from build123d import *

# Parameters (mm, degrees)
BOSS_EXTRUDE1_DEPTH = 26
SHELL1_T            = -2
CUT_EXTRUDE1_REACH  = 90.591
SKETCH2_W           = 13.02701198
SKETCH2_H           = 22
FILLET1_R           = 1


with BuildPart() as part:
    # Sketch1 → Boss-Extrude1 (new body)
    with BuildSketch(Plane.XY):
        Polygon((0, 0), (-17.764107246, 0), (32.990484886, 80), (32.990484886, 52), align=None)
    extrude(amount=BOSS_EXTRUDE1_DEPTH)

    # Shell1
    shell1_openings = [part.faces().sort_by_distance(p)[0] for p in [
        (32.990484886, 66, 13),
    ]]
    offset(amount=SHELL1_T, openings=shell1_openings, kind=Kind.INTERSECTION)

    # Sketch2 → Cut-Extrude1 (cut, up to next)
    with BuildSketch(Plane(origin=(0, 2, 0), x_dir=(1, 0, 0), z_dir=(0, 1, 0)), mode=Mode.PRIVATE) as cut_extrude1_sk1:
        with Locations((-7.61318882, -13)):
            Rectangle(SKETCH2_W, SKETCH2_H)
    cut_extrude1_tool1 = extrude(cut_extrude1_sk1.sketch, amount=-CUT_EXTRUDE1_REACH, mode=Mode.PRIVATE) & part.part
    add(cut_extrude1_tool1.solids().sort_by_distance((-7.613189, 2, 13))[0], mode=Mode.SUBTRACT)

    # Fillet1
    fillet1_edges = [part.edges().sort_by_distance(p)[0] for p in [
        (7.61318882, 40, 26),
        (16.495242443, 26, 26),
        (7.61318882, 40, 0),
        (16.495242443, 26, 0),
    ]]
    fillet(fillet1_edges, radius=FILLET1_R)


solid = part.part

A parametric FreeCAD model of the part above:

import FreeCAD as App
import Part
import Sketcher


def edges_at(feature, points):
    """Names of the edges that pass closest to the given points."""
    edges = feature.Shape.Edges
    near = lambda p: min(range(len(edges)), key=lambda i: edges[i].distToShape(Part.Vertex(*p))[0])
    return sorted({f"Edge{near(p) + 1}" for p in points})


def faces_at(feature, points):
    """Names of the faces that lie closest to the given points."""
    faces = feature.Shape.Faces
    near = lambda p: min(range(len(faces)), key=lambda i: faces[i].distToShape(Part.Vertex(*p))[0])
    return sorted({f"Face{near(p) + 1}" for p in points})


def add_polygon(sketch, points):
    """Adds a closed chain of lines whose ends are joined by coincident constraints."""
    first, n = sketch.GeometryCount, len(points)
    for a, b in zip(points, points[1:] + points[:1]):
        sketch.addGeometry(Part.LineSegment(App.Vector(*a, 0), App.Vector(*b, 0)), False)
    for i in range(n):
        sketch.addConstraint(Sketcher.Constraint("Coincident", first + i, 2, first + (i + 1) % n, 1))

doc = App.newDocument("Part")
body = doc.addObject("PartDesign::Body", "Body")

sketch1 = doc.addObject("Sketcher::SketchObject", "Sketch")
body.addObject(sketch1)
sketch1.AttachmentSupport = (doc.XY_Plane, [""])
sketch1.MapMode = "FlatFace"
add_polygon(sketch1, [(-17.764107, 0), (0, 0), (32.990485, 52), (32.990485, 80)])
sketch1.addConstraint([
    Sketcher.Constraint("Horizontal", 0),
    Sketcher.Constraint("Vertical", 2),
    Sketcher.Constraint("Coincident", 0, 2, -1, 1),
    Sketcher.Constraint("Parallel", 1, 3),
    Sketcher.Constraint("DistanceY", 2, 1, 2, 2, 28.0),
    Sketcher.Constraint("DistanceY", -1, 1, 1, 2, 52.0),
    Sketcher.Constraint("Distance", 1, 61.582238),
])
pad1 = doc.addObject("PartDesign::Pad", "Pad")
body.addObject(pad1)
pad1.Profile = sketch1
pad1.Length = 26
doc.recompute()

thickness = doc.addObject("PartDesign::Thickness", "Thickness")
body.addObject(thickness)
thickness.Base = (pad1, faces_at(pad1, [(32.99, 66, 13)]))
thickness.Value = 2
thickness.Reversed = True
thickness.Join = "Intersection"

sketch2 = doc.addObject("Sketcher::SketchObject", "Sketch001")
body.addObject(sketch2)
sketch2.AttachmentSupport = (doc.XZ_Plane, [""])
sketch2.MapMode = "FlatFace"
sketch2.AttachmentOffset = App.Placement(App.Vector(0, 0, -2), App.Rotation())
add_polygon(sketch2, [(-14.126695, 2), (-14.126695, 24), (-1.099683, 24), (-1.099683, 2)])
sketch2.addConstraint([
    Sketcher.Constraint("Vertical", 0),
    Sketcher.Constraint("Horizontal", 1),
    Sketcher.Constraint("Vertical", 2),
    Sketcher.Constraint("Horizontal", 3),
    Sketcher.Constraint("DistanceY", 0, 1, 0, 2, 22.0),
    Sketcher.Constraint("DistanceY", -1, 1, 0, 2, 24.0),
    Sketcher.Constraint("DistanceX", 1, 1, 1, 2, 13.027012),
    Sketcher.Constraint("DistanceX", 0, 2, -1, 1, 14.126695),
])
pocket1 = doc.addObject("PartDesign::Pocket", "Pocket")
body.addObject(pocket1)
pocket1.Profile = sketch2
pocket1.Type = "UpToFirst"
pocket1.Reversed = True
doc.recompute()

fillet = doc.addObject("PartDesign::Fillet", "Fillet")
body.addObject(fillet)
fillet.Base = (pocket1, edges_at(pocket1, [
    (7.613, 40, 26),
    (16.495, 26, 26),
    (7.613, 40, 0),
    (16.495, 26, 0),
]))
fillet.Radius = 1

doc.recompute()
